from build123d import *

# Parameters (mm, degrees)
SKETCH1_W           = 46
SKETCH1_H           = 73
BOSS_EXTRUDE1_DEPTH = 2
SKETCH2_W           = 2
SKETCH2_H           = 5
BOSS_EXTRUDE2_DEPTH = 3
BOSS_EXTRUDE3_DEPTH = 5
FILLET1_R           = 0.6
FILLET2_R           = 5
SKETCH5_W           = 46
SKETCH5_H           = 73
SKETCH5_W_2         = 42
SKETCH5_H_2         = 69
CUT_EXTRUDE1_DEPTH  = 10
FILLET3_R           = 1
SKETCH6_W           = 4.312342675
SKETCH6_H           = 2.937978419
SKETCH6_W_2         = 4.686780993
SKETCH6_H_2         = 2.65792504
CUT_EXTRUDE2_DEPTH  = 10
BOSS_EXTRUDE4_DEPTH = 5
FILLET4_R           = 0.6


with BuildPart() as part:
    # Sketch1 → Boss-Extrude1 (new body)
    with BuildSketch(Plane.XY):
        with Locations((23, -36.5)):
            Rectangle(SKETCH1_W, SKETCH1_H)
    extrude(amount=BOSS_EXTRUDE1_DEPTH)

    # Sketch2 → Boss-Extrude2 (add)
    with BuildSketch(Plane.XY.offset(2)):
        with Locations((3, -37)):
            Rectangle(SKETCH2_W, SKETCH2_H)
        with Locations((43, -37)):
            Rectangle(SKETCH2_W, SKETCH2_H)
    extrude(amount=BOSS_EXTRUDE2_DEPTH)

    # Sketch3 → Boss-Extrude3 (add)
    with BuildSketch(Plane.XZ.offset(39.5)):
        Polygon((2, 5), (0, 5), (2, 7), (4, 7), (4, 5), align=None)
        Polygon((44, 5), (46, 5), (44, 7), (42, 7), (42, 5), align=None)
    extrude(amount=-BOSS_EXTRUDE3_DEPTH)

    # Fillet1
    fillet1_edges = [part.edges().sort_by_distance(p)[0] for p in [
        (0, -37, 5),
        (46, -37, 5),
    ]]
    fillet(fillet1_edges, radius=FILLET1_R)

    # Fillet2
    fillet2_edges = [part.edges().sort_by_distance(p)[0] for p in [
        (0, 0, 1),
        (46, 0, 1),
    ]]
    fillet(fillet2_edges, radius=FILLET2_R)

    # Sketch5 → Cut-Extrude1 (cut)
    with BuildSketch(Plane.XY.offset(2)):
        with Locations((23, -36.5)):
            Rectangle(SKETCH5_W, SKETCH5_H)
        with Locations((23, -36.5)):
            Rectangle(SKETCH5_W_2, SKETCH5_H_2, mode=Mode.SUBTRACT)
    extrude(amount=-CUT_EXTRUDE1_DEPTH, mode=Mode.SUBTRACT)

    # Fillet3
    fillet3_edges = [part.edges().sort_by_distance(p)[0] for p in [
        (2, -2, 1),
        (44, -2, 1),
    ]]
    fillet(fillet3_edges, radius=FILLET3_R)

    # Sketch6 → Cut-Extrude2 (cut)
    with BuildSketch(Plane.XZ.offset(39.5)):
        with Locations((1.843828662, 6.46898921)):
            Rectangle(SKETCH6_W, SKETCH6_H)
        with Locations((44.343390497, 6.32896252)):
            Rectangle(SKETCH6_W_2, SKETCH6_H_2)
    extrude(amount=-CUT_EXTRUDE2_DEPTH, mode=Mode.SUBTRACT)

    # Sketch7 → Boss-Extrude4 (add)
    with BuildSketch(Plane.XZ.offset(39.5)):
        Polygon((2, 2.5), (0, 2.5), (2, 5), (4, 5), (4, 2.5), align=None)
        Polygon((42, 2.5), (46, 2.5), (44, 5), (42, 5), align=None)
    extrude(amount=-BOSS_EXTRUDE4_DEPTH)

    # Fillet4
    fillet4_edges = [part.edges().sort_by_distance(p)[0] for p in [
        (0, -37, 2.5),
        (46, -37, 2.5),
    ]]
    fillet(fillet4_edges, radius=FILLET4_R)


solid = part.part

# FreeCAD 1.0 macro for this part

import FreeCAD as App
import Part
import Sketcher
from FreeCAD import Vector


def edges_at(feature, points):
    """Names of the edges that pass closest to the given points."""
    edges = feature.Shape.Edges
    near = lambda p: min(range(len(edges)), key=lambda i: edges[i].distToShape(Part.Vertex(*p))[0])
    return sorted({f"Edge{near(p) + 1}" for p in points})

doc = App.newDocument("Part")
body = doc.addObject("PartDesign::Body", "Body")

sketch1 = body.newObject("Sketcher::SketchObject", "Sketch")
sketch1.AttachmentSupport = (doc.getObject("XY_Plane"), [""])
sketch1.MapMode = "FlatFace"
sketch1.addGeometry([
    Part.LineSegment(Vector(0, 0, 0), Vector(0, -73, 0)),
    Part.LineSegment(Vector(0, -73, 0), Vector(46, -73, 0)),
    Part.LineSegment(Vector(46, -73, 0), Vector(46, 0, 0)),
    Part.LineSegment(Vector(46, 0, 0), Vector(0, 0, 0)),
], False)
sketch1.addConstraint([
    Sketcher.Constraint("Coincident", 0, 2, 1, 1),
    Sketcher.Constraint("Coincident", 1, 2, 2, 1),
    Sketcher.Constraint("Coincident", 2, 2, 3, 1),
    Sketcher.Constraint("Coincident", 3, 2, 0, 1),
    Sketcher.Constraint("Vertical", 0),
    Sketcher.Constraint("Horizontal", 1),
    Sketcher.Constraint("Vertical", 2),
    Sketcher.Constraint("Horizontal", 3),
    Sketcher.Constraint("Coincident", 3, 2, -1, 1),
    Sketcher.Constraint("DistanceX", 1, 1, 1, 2, 46.0),
    Sketcher.Constraint("DistanceY", 0, 2, 0, 1, 73.0),
])
pad1 = body.newObject("PartDesign::Pad", "Pad")
pad1.Profile = sketch1
pad1.Length = 2

sketch2 = body.newObject("Sketcher::SketchObject", "Sketch001")
sketch2.AttachmentSupport = (doc.getObject("XY_Plane"), [""])
sketch2.MapMode = "FlatFace"
sketch2.AttachmentOffset = App.Placement(Vector(0, 0, 2), App.Rotation())
sketch2.addGeometry([
    Part.LineSegment(Vector(2, -34.5, 0), Vector(2, -39.5, 0)),
    Part.LineSegment(Vector(2, -39.5, 0), Vector(4, -39.5, 0)),
    Part.LineSegment(Vector(4, -39.5, 0), Vector(4, -34.5, 0)),
    Part.LineSegment(Vector(4, -34.5, 0), Vector(2, -34.5, 0)),
    Part.LineSegment(Vector(42, -34.5, 0), Vector(42, -39.5, 0)),
    Part.LineSegment(Vector(42, -39.5, 0), Vector(44, -39.5, 0)),
    Part.LineSegment(Vector(44, -39.5, 0), Vector(44, -34.5, 0)),
    Part.LineSegment(Vector(44, -34.5, 0), Vector(42, -34.5, 0)),
], False)
sketch2.addConstraint([
    Sketcher.Constraint("Coincident", 0, 2, 1, 1),
    Sketcher.Constraint("Coincident", 1, 2, 2, 1),
    Sketcher.Constraint("Coincident", 2, 2, 3, 1),
    Sketcher.Constraint("Coincident", 3, 2, 0, 1),
    Sketcher.Constraint("Coincident", 4, 2, 5, 1),
    Sketcher.Constraint("Coincident", 5, 2, 6, 1),
    Sketcher.Constraint("Coincident", 6, 2, 7, 1),
    Sketcher.Constraint("Coincident", 7, 2, 4, 1),
    Sketcher.Constraint("Vertical", 0),
    Sketcher.Constraint("Horizontal", 1),
    Sketcher.Constraint("Vertical", 2),
    Sketcher.Constraint("Horizontal", 3),
    Sketcher.Constraint("Vertical", 4),
    Sketcher.Constraint("Horizontal", 5),
    Sketcher.Constraint("Vertical", 6),
    Sketcher.Constraint("Horizontal", 7),
    Sketcher.Constraint("Horizontal", 1, 2, 4, 2),
    Sketcher.Constraint("Horizontal", 3, 2, 6, 2),
    Sketcher.Constraint("Equal", 3, 5),
    Sketcher.Constraint("DistanceX", 1, 1, 1, 2, 2.0),
    Sketcher.Constraint("DistanceY", 0, 2, 0, 1, 5.0),
    Sketcher.Constraint("DistanceX", -1, 1, 0, 2, 2.0),
    Sketcher.Constraint("DistanceX", -1, 1, 4, 2, 42.0),
    Sketcher.Constraint("DistanceY", 0, 2, -1, 1, 39.5),
])
pad2 = body.newObject("PartDesign::Pad", "Pad001")
pad2.Profile = sketch2
pad2.Length = 3

sketch3 = body.newObject("Sketcher::SketchObject", "Sketch002")
sketch3.AttachmentSupport = (doc.getObject("XZ_Plane"), [""])
sketch3.MapMode = "FlatFace"
sketch3.AttachmentOffset = App.Placement(Vector(0, 0, 39.5), App.Rotation())
sketch3.addGeometry([
    Part.LineSegment(Vector(0, 5, 0), Vector(4, 5, 0)),
    Part.LineSegment(Vector(4, 5, 0), Vector(4, 7, 0)),
    Part.LineSegment(Vector(4, 7, 0), Vector(2, 7, 0)),
    Part.LineSegment(Vector(2, 7, 0), Vector(0, 5, 0)),
    Part.LineSegment(Vector(46, 5, 0), Vector(44, 7, 0)),
    Part.LineSegment(Vector(44, 7, 0), Vector(42, 7, 0)),
    Part.LineSegment(Vector(42, 7, 0), Vector(42, 5, 0)),
    Part.LineSegment(Vector(42, 5, 0), Vector(46, 5, 0)),
], False)
sketch3.addConstraint([
    Sketcher.Constraint("Coincident", 0, 2, 1, 1),
    Sketcher.Constraint("Coincident", 1, 2, 2, 1),
    Sketcher.Constraint("Coincident", 2, 2, 3, 1),
    Sketcher.Constraint("Coincident", 3, 2, 0, 1),
    Sketcher.Constraint("Coincident", 4, 2, 5, 1),
    Sketcher.Constraint("Coincident", 5, 2, 6, 1),
    Sketcher.Constraint("Coincident", 6, 2, 7, 1),
    Sketcher.Constraint("Coincident", 7, 2, 4, 1),
    Sketcher.Constraint("Horizontal", 0),
    Sketcher.Constraint("Vertical", 1),
    Sketcher.Constraint("Horizontal", 2),
    Sketcher.Constraint("Horizontal", 5),
    Sketcher.Constraint("Vertical", 6),
    Sketcher.Constraint("Horizontal", 7),
    Sketcher.Constraint("PointOnObject", 3, 2, -2),
    Sketcher.Constraint("Perpendicular", 3, 4),
    Sketcher.Constraint("Horizontal", 2, 2, 4, 2),
    Sketcher.Constraint("Horizontal", 3, 2, 6, 2),
    Sketcher.Constraint("Equal", 2, 5),
    Sketcher.Constraint("Equal", 0, 7),
    Sketcher.Constraint("Equal", 5, 1),
    Sketcher.Constraint("DistanceX", 0, 1, 0, 2, 4.0),
    Sketcher.Constraint("DistanceY", -1, 1, 0, 2, 5.0),
    Sketcher.Constraint("DistanceX", -1, 1, 4, 2, 44.0),
])
pad3 = body.newObject("PartDesign::Pad", "Pad002")
pad3.Profile = sketch3
pad3.Length = 5
pad3.Reversed = True
doc.recompute()

fillet = body.newObject("PartDesign::Fillet", "Fillet")
fillet.Base = (pad3, edges_at(pad3, [(0, -37, 5), (46, -37, 5)]))
fillet.Radius = 0.6
doc.recompute()

fillet2 = body.newObject("PartDesign::Fillet", "Fillet001")
fillet2.Base = (fillet, edges_at(fillet, [(0, 0, 1), (46, 0, 1)]))
fillet2.Radius = 5

sketch4 = body.newObject("Sketcher::SketchObject", "Sketch003")
sketch4.AttachmentSupport = (doc.getObject("XY_Plane"), [""])
sketch4.MapMode = "FlatFace"
sketch4.AttachmentOffset = App.Placement(Vector(0, 0, 2), App.Rotation())
sketch4.addGeometry([
    Part.LineSegment(Vector(0, 0, 0), Vector(0, -73, 0)),
    Part.LineSegment(Vector(0, -73, 0), Vector(46, -73, 0)),
    Part.LineSegment(Vector(46, -73, 0), Vector(46, 0, 0)),
    Part.LineSegment(Vector(46, 0, 0), Vector(0, 0, 0)),
    Part.LineSegment(Vector(44, -71, 0), Vector(2, -71, 0)),
    Part.LineSegment(Vector(2, -71, 0), Vector(2, -2, 0)),
    Part.LineSegment(Vector(2, -2, 0), Vector(44, -2, 0)),
    Part.LineSegment(Vector(44, -2, 0), Vector(44, -71, 0)),
], False)
sketch4.addConstraint([
    Sketcher.Constraint("Coincident", 0, 2, 1, 1),
    Sketcher.Constraint("Coincident", 1, 2, 2, 1),
    Sketcher.Constraint("Coincident", 2, 2, 3, 1),
    Sketcher.Constraint("Coincident", 3, 2, 0, 1),
    Sketcher.Constraint("Coincident", 4, 2, 5, 1),
    Sketcher.Constraint("Coincident", 5, 2, 6, 1),
    Sketcher.Constraint("Coincident", 6, 2, 7, 1),
    Sketcher.Constraint("Coincident", 7, 2, 4, 1),
    Sketcher.Constraint("Vertical", 0),
    Sketcher.Constraint("Horizontal", 1),
    Sketcher.Constraint("Vertical", 2),
    Sketcher.Constraint("Horizontal", 3),
    Sketcher.Constraint("Horizontal", 4),
    Sketcher.Constraint("Vertical", 5),
    Sketcher.Constraint("Horizontal", 6),
    Sketcher.Constraint("Vertical", 7),
    Sketcher.Constraint("Coincident", 3, 2, -1, 1),
    Sketcher.Constraint("DistanceX", 1, 1, 1, 2, 46.0),
    Sketcher.Constraint("DistanceX", 4, 2, 4, 1, 42.0),
    Sketcher.Constraint("DistanceY", 0, 2, 0, 1, 73.0),
    Sketcher.Constraint("DistanceY", 5, 1, 5, 2, 69.0),
    Sketcher.Constraint("DistanceX", -1, 1, 4, 2, 2.0),
    Sketcher.Constraint("DistanceY", 4, 2, -1, 1, 71.0),
])
pocket1 = body.newObject("PartDesign::Pocket", "Pocket")
pocket1.Profile = sketch4
pocket1.Length = 10
doc.recompute()

fillet3 = body.newObject("PartDesign::Fillet", "Fillet002")
fillet3.Base = (pocket1, edges_at(pocket1, [(2, -2, 1), (44, -2, 1)]))
fillet3.Radius = 1

sketch5 = body.newObject("Sketcher::SketchObject", "Sketch004")
sketch5.AttachmentSupport = (doc.getObject("XZ_Plane"), [""])
sketch5.MapMode = "FlatFace"
sketch5.AttachmentOffset = App.Placement(Vector(0, 0, 39.5), App.Rotation())
sketch5.addGeometry([
    Part.LineSegment(Vector(-0.3, 7.9, 0), Vector(-0.3, 5, 0)),
    Part.LineSegment(Vector(-0.3, 5, 0), Vector(4, 5, 0)),
    Part.LineSegment(Vector(4, 5, 0), Vector(4, 7.9, 0)),
    Part.LineSegment(Vector(4, 7.9, 0), Vector(-0.3, 7.9, 0)),
    Part.LineSegment(Vector(42, 7.7, 0), Vector(42, 5, 0)),
    Part.LineSegment(Vector(42, 5, 0), Vector(46.7, 5, 0)),
    Part.LineSegment(Vector(46.7, 5, 0), Vector(46.7, 7.7, 0)),
    Part.LineSegment(Vector(46.7, 7.7, 0), Vector(42, 7.7, 0)),
], False)
sketch5.addConstraint([
    Sketcher.Constraint("Coincident", 0, 2, 1, 1),
    Sketcher.Constraint("Coincident", 1, 2, 2, 1),
    Sketcher.Constraint("Coincident", 2, 2, 3, 1),
    Sketcher.Constraint("Coincident", 3, 2, 0, 1),
    Sketcher.Constraint("Coincident", 4, 2, 5, 1),
    Sketcher.Constraint("Coincident", 5, 2, 6, 1),
    Sketcher.Constraint("Coincident", 6, 2, 7, 1),
    Sketcher.Constraint("Coincident", 7, 2, 4, 1),
    Sketcher.Constraint("Vertical", 0),
    Sketcher.Constraint("Horizontal", 1),
    Sketcher.Constraint("Vertical", 2),
    Sketcher.Constraint("Horizontal", 3),
    Sketcher.Constraint("Vertical", 4),
    Sketcher.Constraint("Horizontal", 5),
    Sketcher.Constraint("Vertical", 6),
    Sketcher.Constraint("Horizontal", 7),
    Sketcher.Constraint("Horizontal", 1, 2, 4, 2),
    Sketcher.Constraint("DistanceY", -1, 1, 0, 2, 5.0),
    Sketcher.Constraint("DistanceX", -1, 1, 1, 2, 4.0),
    Sketcher.Constraint("DistanceX", -1, 1, 4, 2, 42.0),
    Sketcher.Constraint("DistanceX", 5, 1, 5, 2, 4.686781),
    Sketcher.Constraint("DistanceY", 0, 2, 0, 1, 2.937978),
    Sketcher.Constraint("DistanceX", 1, 1, 1, 2, 4.312343),
    Sketcher.Constraint("DistanceY", 4, 2, 4, 1, 2.657925),
])
pocket2 = body.newObject("PartDesign::Pocket", "Pocket001")
pocket2.Profile = sketch5
pocket2.Length = 10

sketch6 = body.newObject("Sketcher::SketchObject", "Sketch005")
sketch6.AttachmentSupport = (doc.getObject("XZ_Plane"), [""])
sketch6.MapMode = "FlatFace"
sketch6.AttachmentOffset = App.Placement(Vector(0, 0, 39.5), App.Rotation())
sketch6.addGeometry([
    Part.LineSegment(Vector(0, 2.5, 0), Vector(4, 2.5, 0)),
    Part.LineSegment(Vector(4, 2.5, 0), Vector(4, 5, 0)),
    Part.LineSegment(Vector(4, 5, 0), Vector(2, 5, 0)),
    Part.LineSegment(Vector(2, 5, 0), Vector(0, 2.5, 0)),
    Part.LineSegment(Vector(42, 2.5, 0), Vector(46, 2.5, 0)),
    Part.LineSegment(Vector(46, 2.5, 0), Vector(44, 5, 0)),
    Part.LineSegment(Vector(44, 5, 0), Vector(42, 5, 0)),
    Part.LineSegment(Vector(42, 5, 0), Vector(42, 2.5, 0)),
], False)
sketch6.addConstraint([
    Sketcher.Constraint("Coincident", 0, 2, 1, 1),
    Sketcher.Constraint("Coincident", 1, 2, 2, 1),
    Sketcher.Constraint("Coincident", 2, 2, 3, 1),
    Sketcher.Constraint("Coincident", 3, 2, 0, 1),
    Sketcher.Constraint("Coincident", 4, 2, 5, 1),
    Sketcher.Constraint("Coincident", 5, 2, 6, 1),
    Sketcher.Constraint("Coincident", 6, 2, 7, 1),
    Sketcher.Constraint("Coincident", 7, 2, 4, 1),
    Sketcher.Constraint("Horizontal", 0),
    Sketcher.Constraint("Vertical", 1),
    Sketcher.Constraint("Horizontal", 2),
    Sketcher.Constraint("Horizontal", 4),
    Sketcher.Constraint("Horizontal", 6),
    Sketcher.Constraint("Vertical", 7),
    Sketcher.Constraint("PointOnObject", 3, 2, -2),
    Sketcher.Constraint("Horizontal", 3, 2, 4, 2),
    Sketcher.Constraint("Horizontal", 2, 2, 5, 2),
    Sketcher.Constraint("Equal", 0, 4),
    Sketcher.Constraint("Equal", 2, 6),
    Sketcher.Constraint("DistanceX", 0, 1, 0, 2, 4.0),
    Sketcher.Constraint("DistanceX", 2, 2, 2, 1, 2.0),
    Sketcher.Constraint("DistanceY", 1, 1, 1, 2, 2.5),
    Sketcher.Constraint("DistanceY", -1, 1, 1, 2, 5.0),
    Sketcher.Constraint("DistanceX", -1, 1, 4, 2, 46.0),
])
pad4 = body.newObject("PartDesign::Pad", "Pad003")
pad4.Profile = sketch6
pad4.Length = 5
pad4.Reversed = True
doc.recompute()

fillet4 = body.newObject("PartDesign::Fillet", "Fillet003")
fillet4.Base = (pad4, edges_at(pad4, [(0, -37, 2.5), (46, -37, 2.5)]))
fillet4.Radius = 0.6

doc.recompute()
